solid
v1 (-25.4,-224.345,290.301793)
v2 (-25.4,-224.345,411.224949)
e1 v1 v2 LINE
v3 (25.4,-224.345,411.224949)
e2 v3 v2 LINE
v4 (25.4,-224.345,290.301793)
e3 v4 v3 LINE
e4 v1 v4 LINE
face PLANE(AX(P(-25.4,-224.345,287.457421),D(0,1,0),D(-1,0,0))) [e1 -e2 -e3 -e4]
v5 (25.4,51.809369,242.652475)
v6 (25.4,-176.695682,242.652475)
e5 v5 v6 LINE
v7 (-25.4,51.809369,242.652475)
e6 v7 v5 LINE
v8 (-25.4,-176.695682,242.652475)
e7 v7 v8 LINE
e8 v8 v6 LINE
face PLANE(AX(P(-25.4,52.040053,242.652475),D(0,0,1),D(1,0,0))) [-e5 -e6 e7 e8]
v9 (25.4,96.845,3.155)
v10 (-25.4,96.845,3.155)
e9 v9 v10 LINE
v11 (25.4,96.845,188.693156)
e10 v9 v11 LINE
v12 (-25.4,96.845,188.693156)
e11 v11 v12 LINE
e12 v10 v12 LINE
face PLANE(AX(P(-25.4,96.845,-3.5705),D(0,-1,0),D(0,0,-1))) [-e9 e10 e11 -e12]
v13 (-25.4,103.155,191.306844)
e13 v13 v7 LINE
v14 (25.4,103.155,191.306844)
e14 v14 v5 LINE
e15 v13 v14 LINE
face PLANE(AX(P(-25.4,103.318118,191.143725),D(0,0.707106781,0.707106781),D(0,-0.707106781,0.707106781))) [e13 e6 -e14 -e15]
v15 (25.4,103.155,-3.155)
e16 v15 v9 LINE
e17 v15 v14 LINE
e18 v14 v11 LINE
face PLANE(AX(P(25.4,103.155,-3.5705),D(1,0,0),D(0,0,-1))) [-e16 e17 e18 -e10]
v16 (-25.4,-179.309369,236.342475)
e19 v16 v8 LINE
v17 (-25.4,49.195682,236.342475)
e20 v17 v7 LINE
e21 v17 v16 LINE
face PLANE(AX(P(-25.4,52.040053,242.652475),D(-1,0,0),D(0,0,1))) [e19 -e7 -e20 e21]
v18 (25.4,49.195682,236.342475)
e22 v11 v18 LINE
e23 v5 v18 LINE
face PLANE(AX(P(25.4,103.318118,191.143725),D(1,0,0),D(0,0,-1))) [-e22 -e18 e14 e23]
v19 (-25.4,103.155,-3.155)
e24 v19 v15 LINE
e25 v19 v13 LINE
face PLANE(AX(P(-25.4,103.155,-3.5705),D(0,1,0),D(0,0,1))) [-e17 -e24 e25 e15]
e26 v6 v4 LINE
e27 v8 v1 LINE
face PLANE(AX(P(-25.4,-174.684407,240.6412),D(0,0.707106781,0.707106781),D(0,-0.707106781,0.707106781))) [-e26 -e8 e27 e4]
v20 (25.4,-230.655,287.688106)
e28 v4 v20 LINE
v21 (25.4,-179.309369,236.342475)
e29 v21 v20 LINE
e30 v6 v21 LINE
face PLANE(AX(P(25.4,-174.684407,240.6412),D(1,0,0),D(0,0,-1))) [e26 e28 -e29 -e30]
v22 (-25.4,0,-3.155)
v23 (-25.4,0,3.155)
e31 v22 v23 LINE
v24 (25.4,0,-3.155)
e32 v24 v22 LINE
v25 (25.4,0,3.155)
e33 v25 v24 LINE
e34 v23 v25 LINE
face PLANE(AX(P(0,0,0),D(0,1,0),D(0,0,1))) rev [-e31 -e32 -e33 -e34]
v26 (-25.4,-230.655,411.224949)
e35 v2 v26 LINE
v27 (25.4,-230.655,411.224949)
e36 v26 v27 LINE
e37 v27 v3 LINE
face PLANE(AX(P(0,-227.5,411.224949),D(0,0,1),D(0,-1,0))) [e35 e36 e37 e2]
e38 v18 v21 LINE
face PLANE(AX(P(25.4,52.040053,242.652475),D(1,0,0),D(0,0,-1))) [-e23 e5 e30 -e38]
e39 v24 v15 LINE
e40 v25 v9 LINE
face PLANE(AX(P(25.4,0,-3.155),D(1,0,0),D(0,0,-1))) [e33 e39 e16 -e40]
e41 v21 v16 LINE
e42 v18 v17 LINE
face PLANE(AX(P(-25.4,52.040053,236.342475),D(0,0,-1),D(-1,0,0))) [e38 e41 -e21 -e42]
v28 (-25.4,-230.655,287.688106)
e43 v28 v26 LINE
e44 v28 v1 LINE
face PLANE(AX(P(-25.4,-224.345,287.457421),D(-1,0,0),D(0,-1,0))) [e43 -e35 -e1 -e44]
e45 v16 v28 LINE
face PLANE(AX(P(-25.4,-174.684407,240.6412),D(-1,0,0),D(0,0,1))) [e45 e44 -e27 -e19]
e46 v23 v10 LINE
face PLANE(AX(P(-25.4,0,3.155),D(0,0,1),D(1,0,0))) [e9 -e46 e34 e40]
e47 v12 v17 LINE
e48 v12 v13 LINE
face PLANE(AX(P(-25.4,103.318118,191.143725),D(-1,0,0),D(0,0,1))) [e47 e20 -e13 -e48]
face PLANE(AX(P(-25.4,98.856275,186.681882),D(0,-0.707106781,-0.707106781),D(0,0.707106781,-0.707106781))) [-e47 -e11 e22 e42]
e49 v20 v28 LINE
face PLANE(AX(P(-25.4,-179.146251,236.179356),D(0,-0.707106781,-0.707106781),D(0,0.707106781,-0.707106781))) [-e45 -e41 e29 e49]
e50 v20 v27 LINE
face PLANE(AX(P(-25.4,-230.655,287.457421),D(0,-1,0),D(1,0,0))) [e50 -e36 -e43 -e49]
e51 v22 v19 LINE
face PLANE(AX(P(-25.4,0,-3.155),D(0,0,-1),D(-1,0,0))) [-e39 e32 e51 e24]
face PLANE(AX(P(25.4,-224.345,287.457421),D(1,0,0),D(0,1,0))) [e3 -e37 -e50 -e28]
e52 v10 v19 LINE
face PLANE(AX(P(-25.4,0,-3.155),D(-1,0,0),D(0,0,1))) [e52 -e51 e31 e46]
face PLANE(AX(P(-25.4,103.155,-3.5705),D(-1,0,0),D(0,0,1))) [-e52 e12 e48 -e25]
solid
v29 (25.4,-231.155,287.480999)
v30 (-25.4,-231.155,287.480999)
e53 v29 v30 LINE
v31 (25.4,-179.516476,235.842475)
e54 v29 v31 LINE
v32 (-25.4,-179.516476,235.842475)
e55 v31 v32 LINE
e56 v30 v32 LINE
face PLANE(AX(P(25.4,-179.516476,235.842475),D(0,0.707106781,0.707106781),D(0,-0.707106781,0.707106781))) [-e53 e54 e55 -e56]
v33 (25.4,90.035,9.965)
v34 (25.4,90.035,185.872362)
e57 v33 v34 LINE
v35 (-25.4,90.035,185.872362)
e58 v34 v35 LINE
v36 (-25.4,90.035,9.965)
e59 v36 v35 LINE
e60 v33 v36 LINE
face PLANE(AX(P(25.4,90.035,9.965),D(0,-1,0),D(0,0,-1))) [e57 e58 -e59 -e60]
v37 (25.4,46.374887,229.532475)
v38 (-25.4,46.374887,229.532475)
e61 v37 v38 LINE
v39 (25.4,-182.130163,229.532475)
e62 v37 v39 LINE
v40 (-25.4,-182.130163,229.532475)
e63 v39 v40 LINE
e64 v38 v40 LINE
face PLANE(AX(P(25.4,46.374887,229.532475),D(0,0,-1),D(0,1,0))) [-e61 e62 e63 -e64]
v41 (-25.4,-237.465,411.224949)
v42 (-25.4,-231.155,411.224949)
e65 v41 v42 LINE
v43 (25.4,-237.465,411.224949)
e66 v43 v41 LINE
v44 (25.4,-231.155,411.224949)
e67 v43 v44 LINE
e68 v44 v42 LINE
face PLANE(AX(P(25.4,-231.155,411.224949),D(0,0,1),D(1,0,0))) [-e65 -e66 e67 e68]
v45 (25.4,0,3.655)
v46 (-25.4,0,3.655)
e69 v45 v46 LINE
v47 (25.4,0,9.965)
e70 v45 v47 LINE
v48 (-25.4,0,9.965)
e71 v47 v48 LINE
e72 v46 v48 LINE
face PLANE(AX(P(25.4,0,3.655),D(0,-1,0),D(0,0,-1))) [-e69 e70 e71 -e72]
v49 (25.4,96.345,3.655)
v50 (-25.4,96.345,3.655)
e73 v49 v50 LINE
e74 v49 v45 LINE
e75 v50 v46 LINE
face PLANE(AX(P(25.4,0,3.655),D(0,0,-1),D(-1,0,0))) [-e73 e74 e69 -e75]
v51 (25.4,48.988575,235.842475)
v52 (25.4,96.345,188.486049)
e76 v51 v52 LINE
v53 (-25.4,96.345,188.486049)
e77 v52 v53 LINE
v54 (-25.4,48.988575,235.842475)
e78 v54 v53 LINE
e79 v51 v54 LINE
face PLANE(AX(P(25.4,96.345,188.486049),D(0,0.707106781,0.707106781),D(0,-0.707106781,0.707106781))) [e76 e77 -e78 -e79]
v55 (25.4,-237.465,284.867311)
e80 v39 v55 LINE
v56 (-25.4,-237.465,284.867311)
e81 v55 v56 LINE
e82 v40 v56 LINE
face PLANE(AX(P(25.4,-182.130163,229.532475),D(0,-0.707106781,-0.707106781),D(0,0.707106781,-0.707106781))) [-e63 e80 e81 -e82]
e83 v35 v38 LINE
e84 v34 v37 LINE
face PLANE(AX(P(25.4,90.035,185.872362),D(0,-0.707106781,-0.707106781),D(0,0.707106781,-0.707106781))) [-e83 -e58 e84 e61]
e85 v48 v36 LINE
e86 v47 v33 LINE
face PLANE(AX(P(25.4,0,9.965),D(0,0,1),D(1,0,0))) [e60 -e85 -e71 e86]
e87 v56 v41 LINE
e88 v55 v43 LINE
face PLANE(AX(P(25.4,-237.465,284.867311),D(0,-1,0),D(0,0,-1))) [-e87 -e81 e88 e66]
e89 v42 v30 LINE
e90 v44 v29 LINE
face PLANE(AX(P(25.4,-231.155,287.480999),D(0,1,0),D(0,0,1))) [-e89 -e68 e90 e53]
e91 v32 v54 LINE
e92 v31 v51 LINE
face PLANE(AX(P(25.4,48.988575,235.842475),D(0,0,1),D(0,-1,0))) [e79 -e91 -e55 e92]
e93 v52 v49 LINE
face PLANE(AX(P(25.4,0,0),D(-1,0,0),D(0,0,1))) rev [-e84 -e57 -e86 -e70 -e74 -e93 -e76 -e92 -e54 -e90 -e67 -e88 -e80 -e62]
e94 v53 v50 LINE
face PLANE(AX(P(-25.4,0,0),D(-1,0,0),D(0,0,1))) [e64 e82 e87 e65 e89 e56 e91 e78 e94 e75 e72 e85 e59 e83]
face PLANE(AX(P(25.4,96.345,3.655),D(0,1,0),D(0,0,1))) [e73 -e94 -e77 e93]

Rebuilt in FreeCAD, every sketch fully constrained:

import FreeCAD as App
import Part
import Sketcher
Q = App.Units.Quantity

doc = App.newDocument("Part")
params = doc.addObject("Spreadsheet::Sheet", "Params")
for row, (alias, value) in enumerate([
    ("sketch1_width", "50.8 mm"),
    ("sketch1_height", "6.31 mm"),
    ("sketch2_width", "100 mm"),
    ("sketch2_height", "190 mm"),
    ("sketch2_length", "70 mm"),
    ("sketch2_height2", "122.23 mm"),
    ("sketch3_width", "6.31 mm"),
    ("pad1_length", "50.8 mm"),
], start=1):
    params.set(f"A{row}", alias)
    params.set(f"B{row}", "=" + value)
    params.setAlias(f"B{row}", alias)

body = doc.addObject("PartDesign::Body", "Body")

# Sketch on XZ plane
sketch1 = body.newObject("Sketcher::SketchObject", "Sketch")
sketch1.AttachmentSupport = (doc.getObject("XZ_Plane"), [""])
sketch1.MapMode = "FlatFace"
sketch1.addGeometry([
    Part.LineSegment(App.Vector(-25, -3, 0), App.Vector(-25, 3, 0)),
    Part.LineSegment(App.Vector(-25, 3, 0), App.Vector(25, 3, 0)),
    Part.LineSegment(App.Vector(25, 3, 0), App.Vector(25, -3, 0)),
    Part.LineSegment(App.Vector(25, -3, 0), App.Vector(-25, -3, 0)),
], False)
sketch1.addConstraint([
    Sketcher.Constraint("Coincident", 0, 2, 1, 1),
    Sketcher.Constraint("Coincident", 1, 2, 2, 1),
    Sketcher.Constraint("Coincident", 2, 2, 3, 1),
    Sketcher.Constraint("Coincident", 3, 2, 0, 1),
    Sketcher.Constraint("Vertical", 0),
    Sketcher.Constraint("Horizontal", 1),
    Sketcher.Constraint("Vertical", 2),
    Sketcher.Constraint("Horizontal", 3),
    Sketcher.Constraint("Symmetric", 0, 2, 2, 2, -1, 1),
    Sketcher.Constraint("DistanceX", 1, 1, 1, 2, Q("50.8 mm")),
    Sketcher.Constraint("DistanceY", 0, 1, 0, 2, Q("6.31 mm")),
])
sketch1.setExpression("Constraints[9]", "Params.sketch1_width")
sketch1.setExpression("Constraints[10]", "Params.sketch1_height")

# Sketch on YZ plane
sketch2 = body.newObject("Sketcher::SketchObject", "Sketch001")
sketch2.AttachmentSupport = (doc.getObject("YZ_Plane"), [""])
sketch2.MapMode = "FlatFace"
sketch2.addGeometry([
    Part.LineSegment(App.Vector(0, 0, 0), App.Vector(100, 0, 0)),  # 0
    Part.LineSegment(App.Vector(100, 0, 0), App.Vector(100, 190, 0)),  # 1
    Part.LineSegment(App.Vector(100, 190, 0), App.Vector(51, 239, 0)),  # 2
    Part.LineSegment(App.Vector(51, 239, 0), App.Vector(-178, 239, 0)),  # 3
    Part.LineSegment(App.Vector(-178, 239, 0), App.Vector(-228, 289, 0)),  # 4
    Part.LineSegment(App.Vector(-228, 289, 0), App.Vector(-228, 411, 0)),  # 5
], False)
sketch2.addConstraint([
    Sketcher.Constraint("Coincident", 0, 2, 1, 1),
    Sketcher.Constraint("Coincident", 1, 2, 2, 1),
    Sketcher.Constraint("Coincident", 2, 2, 3, 1),
    Sketcher.Constraint("Coincident", 3, 2, 4, 1),
    Sketcher.Constraint("Coincident", 4, 2, 5, 1),
    Sketcher.Constraint("Horizontal", 0),
    Sketcher.Constraint("Vertical", 1),
    Sketcher.Constraint("Horizontal", 3),
    Sketcher.Constraint("Vertical", 5),
    Sketcher.Constraint("Coincident", 0, 1, -1, 1),
    Sketcher.Constraint("Parallel", 2, 4),
    Sketcher.Constraint("Equal", 2, 4),
    Sketcher.Constraint("DistanceX", 0, 1, 0, 2, Q("100 mm")),
    Sketcher.Constraint("DistanceY", 1, 1, 1, 2, Q("190 mm")),
    Sketcher.Constraint("Angle", 2, Q("135 deg")),
    Sketcher.Constraint("Distance", 2, Q("70 mm")),
    Sketcher.Constraint("DistanceY", 5, 1, 5, 2, Q("122.23 mm")),
    Sketcher.Constraint("DistanceX", 4, 2, -1, 1, Q("227.5 mm")),
])
sketch2.setExpression("Constraints[12]", "Params.sketch2_width")
sketch2.setExpression("Constraints[13]", "Params.sketch2_height")
sketch2.setExpression("Constraints[15]", "Params.sketch2_length")
sketch2.setExpression("Constraints[16]", "Params.sketch2_height2")
doc.recompute()

additivepipe = body.newObject("PartDesign::AdditivePipe", "AdditivePipe")
additivepipe.Profile = sketch1
additivepipe.Spine = (sketch2, ["Edge1", "Edge2", "Edge3", "Edge4", "Edge5", "Edge6"])
additivepipe.Transition = "Right corner"
body2 = doc.addObject("PartDesign::Body", "Body001")

# Sketch on YZ plane
sketch3 = body2.newObject("Sketcher::SketchObject", "Sketch002")
sketch3.AttachmentSupport = (doc.getObject("YZ_Plane001"), [""])
sketch3.MapMode = "FlatFace"
sketch3.AttachmentOffset = App.Placement(App.Vector(0, 0, -25.4), App.Rotation())
sketch3.addGeometry([
    Part.LineSegment(App.Vector(96, 4, 0), App.Vector(0, 4, 0)),  # 0
    Part.LineSegment(App.Vector(0, 4, 0), App.Vector(0, 10, 0)),  # 1
    Part.LineSegment(App.Vector(0, 10, 0), App.Vector(90, 10, 0)),  # 2
    Part.LineSegment(App.Vector(90, 10, 0), App.Vector(90, 186, 0)),  # 3
    Part.LineSegment(App.Vector(90, 186, 0), App.Vector(46, 230, 0)),  # 4
    Part.LineSegment(App.Vector(46, 230, 0), App.Vector(-182, 230, 0)),  # 5
    Part.LineSegment(App.Vector(-182, 230, 0), App.Vector(-237, 285, 0)),  # 6
    Part.LineSegment(App.Vector(-237, 285, 0), App.Vector(-237, 411, 0)),  # 7
    Part.LineSegment(App.Vector(-237, 411, 0), App.Vector(-231, 411, 0)),  # 8
    Part.LineSegment(App.Vector(-231, 411, 0), App.Vector(-231, 287, 0)),  # 9
    Part.LineSegment(App.Vector(-231, 287, 0), App.Vector(-180, 236, 0)),  # 10
    Part.LineSegment(App.Vector(-180, 236, 0), App.Vector(49, 236, 0)),  # 11
    Part.LineSegment(App.Vector(49, 236, 0), App.Vector(96, 188, 0)),  # 12
    Part.LineSegment(App.Vector(96, 188, 0), App.Vector(96, 4, 0)),  # 13
], False)
sketch3.addConstraint([
    Sketcher.Constraint("Coincident", 0, 2, 1, 1),
    Sketcher.Constraint("Coincident", 1, 2, 2, 1),
    Sketcher.Constraint("Coincident", 2, 2, 3, 1),
    Sketcher.Constraint("Coincident", 3, 2, 4, 1),
    Sketcher.Constraint("Coincident", 4, 2, 5, 1),
    Sketcher.Constraint("Coincident", 5, 2, 6, 1),
    Sketcher.Constraint("Coincident", 6, 2, 7, 1),
    Sketcher.Constraint("Coincident", 7, 2, 8, 1),
    Sketcher.Constraint("Coincident", 8, 2, 9, 1),
    Sketcher.Constraint("Coincident", 9, 2, 10, 1),
    Sketcher.Constraint("Coincident", 10, 2, 11, 1),
    Sketcher.Constraint("Coincident", 11, 2, 12, 1),
    Sketcher.Constraint("Coincident", 12, 2, 13, 1),
    Sketcher.Constraint("Coincident", 13, 2, 0, 1),
    Sketcher.Constraint("Horizontal", 0),
    Sketcher.Constraint("Vertical", 1),
    Sketcher.Constraint("Horizontal", 2),
    Sketcher.Constraint("Vertical", 3),
    Sketcher.Constraint("Horizontal", 5),
    Sketcher.Constraint("Vertical", 7),
    Sketcher.Constraint("Horizontal", 8),
    Sketcher.Constraint("Vertical", 9),
    Sketcher.Constraint("Horizontal", 11),
    Sketcher.Constraint("Vertical", 13),
    Sketcher.Constraint("PointOnObject", 0, 2, -2),
    Sketcher.Constraint("Parallel", 4, 6),
    Sketcher.Constraint("Parallel", 6, 10),
    Sketcher.Constraint("Parallel", 10, 12),
    Sketcher.Constraint("Equal", 5, 11),
    Sketcher.Constraint("Equal", 8, 1),
    Sketcher.Constraint("Angle", 4, Q("135 deg")),
    Sketcher.Constraint("DistanceX", 8, 1, 8, 2, Q("6.31 mm")),
    Sketcher.Constraint("DistanceX", 6, 2, 3, 2, Q("327.5 mm")),
    Sketcher.Constraint("DistanceX", 0, 2, 0, 1, Q("96.345 mm")),
    Sketcher.Constraint("DistanceX", 2, 1, 2, 2, Q("90.035 mm")),
    Sketcher.Constraint("DistanceY", 5, 2, 10, 2, Q("6.31 mm")),
    Sketcher.Constraint("DistanceY", -1, 1, 0, 2, Q("3.655 mm")),
    Sketcher.Constraint("DistanceY", -1, 1, 9, 2, Q("287.480999 mm")),
    Sketcher.Constraint("Distance", 10, Q("73.027901 mm")),
    Sketcher.Constraint("Distance", 12, Q("66.972099 mm")),
    Sketcher.Constraint("DistanceY", 3, 1, 3, 2, Q("175.907362 mm")),
    Sketcher.Constraint("DistanceY", 7, 1, 7, 2, Q("126.357638 mm")),
])
sketch3.setExpression("Constraints[31]", "Params.sketch3_width")
pad1 = body2.newObject("PartDesign::Pad", "Pad")
pad1.Profile = sketch3
pad1.setExpression("Length", "Params.pad1_length")

doc.recompute()
